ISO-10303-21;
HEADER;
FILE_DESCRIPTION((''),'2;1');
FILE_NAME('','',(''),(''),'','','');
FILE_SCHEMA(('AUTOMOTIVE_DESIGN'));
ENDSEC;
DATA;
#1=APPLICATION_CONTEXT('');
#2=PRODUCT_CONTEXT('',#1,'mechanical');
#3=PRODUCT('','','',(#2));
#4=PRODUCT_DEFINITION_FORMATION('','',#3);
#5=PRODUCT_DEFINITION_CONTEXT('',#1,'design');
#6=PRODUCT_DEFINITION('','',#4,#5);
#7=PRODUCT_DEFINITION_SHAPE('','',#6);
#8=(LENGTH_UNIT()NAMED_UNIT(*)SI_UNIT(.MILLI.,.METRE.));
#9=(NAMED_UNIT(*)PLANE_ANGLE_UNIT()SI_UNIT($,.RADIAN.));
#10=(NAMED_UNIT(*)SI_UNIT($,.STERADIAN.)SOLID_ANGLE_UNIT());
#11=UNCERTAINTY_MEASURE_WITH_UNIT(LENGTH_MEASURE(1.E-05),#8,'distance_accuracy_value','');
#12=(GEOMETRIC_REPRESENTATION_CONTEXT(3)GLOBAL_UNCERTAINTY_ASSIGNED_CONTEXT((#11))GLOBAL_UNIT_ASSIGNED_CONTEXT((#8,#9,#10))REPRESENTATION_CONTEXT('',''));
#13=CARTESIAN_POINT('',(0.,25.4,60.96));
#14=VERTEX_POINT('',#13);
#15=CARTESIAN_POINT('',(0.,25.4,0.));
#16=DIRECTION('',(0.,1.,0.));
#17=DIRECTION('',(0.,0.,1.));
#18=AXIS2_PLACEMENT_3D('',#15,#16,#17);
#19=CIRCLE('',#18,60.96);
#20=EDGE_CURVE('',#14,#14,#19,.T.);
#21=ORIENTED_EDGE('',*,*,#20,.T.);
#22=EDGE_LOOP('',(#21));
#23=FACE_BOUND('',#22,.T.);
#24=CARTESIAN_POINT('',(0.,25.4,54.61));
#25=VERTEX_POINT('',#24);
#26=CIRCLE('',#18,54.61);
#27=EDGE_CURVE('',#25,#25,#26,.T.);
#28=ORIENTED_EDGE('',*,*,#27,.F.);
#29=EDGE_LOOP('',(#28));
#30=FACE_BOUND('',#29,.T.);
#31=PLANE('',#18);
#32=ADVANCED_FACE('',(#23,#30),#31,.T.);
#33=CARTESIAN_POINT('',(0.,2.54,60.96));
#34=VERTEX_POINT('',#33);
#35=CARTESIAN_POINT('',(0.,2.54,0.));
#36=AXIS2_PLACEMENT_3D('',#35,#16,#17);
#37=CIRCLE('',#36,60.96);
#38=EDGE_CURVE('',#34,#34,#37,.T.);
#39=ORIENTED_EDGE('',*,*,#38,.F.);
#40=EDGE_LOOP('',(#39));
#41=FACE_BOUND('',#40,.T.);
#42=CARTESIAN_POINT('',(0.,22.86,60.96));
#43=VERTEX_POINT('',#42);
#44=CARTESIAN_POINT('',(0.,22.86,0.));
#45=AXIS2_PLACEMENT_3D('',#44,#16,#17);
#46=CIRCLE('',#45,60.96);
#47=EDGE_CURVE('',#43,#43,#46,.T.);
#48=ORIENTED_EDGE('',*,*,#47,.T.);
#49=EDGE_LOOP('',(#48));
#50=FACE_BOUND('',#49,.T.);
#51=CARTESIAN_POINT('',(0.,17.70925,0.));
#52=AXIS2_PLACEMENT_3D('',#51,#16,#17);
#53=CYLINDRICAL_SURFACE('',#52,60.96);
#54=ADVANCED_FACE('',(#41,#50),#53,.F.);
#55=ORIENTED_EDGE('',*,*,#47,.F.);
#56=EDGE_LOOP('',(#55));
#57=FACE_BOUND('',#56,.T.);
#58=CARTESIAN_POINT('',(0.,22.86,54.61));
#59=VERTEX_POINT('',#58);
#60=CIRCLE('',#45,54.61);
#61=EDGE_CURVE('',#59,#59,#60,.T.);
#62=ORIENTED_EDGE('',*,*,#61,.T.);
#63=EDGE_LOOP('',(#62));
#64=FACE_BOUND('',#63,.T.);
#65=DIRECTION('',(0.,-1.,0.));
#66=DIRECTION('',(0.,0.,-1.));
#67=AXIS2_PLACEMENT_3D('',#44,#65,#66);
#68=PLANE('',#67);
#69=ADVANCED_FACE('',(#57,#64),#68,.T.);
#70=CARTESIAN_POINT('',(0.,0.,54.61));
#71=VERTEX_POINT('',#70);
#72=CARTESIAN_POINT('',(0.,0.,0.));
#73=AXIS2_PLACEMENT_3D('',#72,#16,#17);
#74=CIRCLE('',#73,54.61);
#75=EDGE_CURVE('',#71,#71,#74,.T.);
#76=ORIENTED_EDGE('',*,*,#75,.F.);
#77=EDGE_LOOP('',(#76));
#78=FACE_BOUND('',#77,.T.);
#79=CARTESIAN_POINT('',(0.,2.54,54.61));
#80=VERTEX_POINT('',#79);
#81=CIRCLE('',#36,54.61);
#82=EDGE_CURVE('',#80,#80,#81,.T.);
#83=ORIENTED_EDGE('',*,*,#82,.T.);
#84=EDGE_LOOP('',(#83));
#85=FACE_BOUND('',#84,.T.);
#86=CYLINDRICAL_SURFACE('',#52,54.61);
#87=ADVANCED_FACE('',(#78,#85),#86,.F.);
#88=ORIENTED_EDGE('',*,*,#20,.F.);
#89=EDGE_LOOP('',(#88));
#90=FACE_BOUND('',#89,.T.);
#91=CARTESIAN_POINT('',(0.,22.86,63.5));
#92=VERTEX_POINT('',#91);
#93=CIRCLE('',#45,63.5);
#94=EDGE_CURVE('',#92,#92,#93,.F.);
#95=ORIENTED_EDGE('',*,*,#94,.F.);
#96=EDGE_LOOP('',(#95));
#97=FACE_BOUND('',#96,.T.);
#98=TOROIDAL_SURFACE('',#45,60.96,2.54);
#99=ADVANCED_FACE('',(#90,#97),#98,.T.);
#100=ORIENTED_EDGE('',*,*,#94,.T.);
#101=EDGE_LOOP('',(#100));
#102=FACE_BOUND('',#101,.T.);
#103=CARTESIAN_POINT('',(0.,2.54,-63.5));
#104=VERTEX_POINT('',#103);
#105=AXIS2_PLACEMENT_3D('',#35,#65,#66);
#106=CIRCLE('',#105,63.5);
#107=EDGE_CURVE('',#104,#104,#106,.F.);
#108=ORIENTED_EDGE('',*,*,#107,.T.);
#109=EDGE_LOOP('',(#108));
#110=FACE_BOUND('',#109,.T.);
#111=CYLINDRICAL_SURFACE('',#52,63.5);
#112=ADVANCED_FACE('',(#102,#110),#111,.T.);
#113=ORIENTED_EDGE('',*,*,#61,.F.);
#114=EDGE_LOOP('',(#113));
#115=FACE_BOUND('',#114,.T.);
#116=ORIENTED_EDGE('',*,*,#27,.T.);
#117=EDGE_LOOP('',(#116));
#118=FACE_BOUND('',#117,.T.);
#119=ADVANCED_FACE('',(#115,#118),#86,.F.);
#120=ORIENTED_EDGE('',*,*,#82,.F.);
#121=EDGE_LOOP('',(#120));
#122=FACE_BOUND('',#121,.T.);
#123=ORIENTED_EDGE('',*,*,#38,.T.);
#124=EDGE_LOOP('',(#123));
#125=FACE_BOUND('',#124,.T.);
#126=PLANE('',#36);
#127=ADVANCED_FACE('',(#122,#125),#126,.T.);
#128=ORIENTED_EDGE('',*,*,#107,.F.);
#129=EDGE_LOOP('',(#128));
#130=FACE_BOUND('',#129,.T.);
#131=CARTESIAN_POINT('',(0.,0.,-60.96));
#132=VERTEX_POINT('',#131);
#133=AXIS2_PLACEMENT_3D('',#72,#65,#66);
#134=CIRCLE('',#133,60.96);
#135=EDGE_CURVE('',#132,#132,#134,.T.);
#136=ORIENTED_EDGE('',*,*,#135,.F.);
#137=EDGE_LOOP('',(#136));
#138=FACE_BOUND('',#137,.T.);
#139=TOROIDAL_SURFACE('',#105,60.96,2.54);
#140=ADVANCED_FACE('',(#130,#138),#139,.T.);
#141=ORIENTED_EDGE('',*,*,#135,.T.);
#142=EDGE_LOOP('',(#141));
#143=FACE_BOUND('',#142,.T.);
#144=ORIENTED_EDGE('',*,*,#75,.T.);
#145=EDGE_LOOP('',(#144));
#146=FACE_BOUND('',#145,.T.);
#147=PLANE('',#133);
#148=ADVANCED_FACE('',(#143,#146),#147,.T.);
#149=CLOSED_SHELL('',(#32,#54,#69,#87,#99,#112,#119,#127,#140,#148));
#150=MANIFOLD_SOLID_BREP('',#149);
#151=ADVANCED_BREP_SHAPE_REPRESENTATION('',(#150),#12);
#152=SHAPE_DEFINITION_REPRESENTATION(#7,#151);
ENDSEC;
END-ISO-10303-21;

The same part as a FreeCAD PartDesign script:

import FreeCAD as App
import Part
import Sketcher

V = App.Vector
Q = App.Units.Quantity


def edges_at(feature, points):
    """Names of the edges that pass closest to the given points."""
    edges = feature.Shape.Edges
    near = lambda p: min(range(len(edges)), key=lambda i: edges[i].distToShape(Part.Vertex(*p))[0])
    return sorted({f"Edge{near(p) + 1}" for p in points})


def add_polygon(sketch, points):
    """Adds a closed chain of lines whose ends are joined by coincident constraints."""
    first, n = sketch.GeometryCount, len(points)
    for a, b in zip(points, points[1:] + points[:1]):
        sketch.addGeometry(Part.LineSegment(App.Vector(*a, 0), App.Vector(*b, 0)), False)
    for i in range(n):
        sketch.addConstraint(Sketcher.Constraint("Coincident", first + i, 2, first + (i + 1) % n, 1))

doc = App.newDocument("Part")
params = doc.addObject("Spreadsheet::Sheet", "Params")
for row, (alias, value) in enumerate([
    ("sketch1_height", "1 in"),
    ("sketch1_height2", "0.1 in"),
    ("sketch1_width", "0.35 in"),
    ("sketch1_width2", "0.25 in"),
    ("revolution_angle", "360 deg"),
    ("fillet_radius", "0.1 in"),
], start=1):
    params.set(f"A{row}", alias)
    params.set(f"B{row}", "=" + value)
    params.setAlias(f"B{row}", alias)

body = doc.addObject("PartDesign::Body", "Body")

sketch1 = body.newObject("Sketcher::SketchObject", "Sketch")
sketch1.AttachmentSupport = (doc.getObject("XY_Plane"), [""])
sketch1.MapMode = "FlatFace"
add_polygon(sketch1, [(-54.6, 25.4), (-63.5, 25.4), (-63.5, 0), (-54.6, 0), (-54.6, 2.5), (-61, 2.5), (-61, 22.9), (-54.6, 22.9)])
sketch1.addConstraint(Sketcher.Constraint("Horizontal", 0))
sketch1.addConstraint(Sketcher.Constraint("Vertical", 1))
sketch1.addConstraint(Sketcher.Constraint("Horizontal", 2))
sketch1.addConstraint(Sketcher.Constraint("Vertical", 3))
sketch1.addConstraint(Sketcher.Constraint("Horizontal", 4))
sketch1.addConstraint(Sketcher.Constraint("Vertical", 5))
sketch1.addConstraint(Sketcher.Constraint("Horizontal", 6))
sketch1.addConstraint(Sketcher.Constraint("Vertical", 7))
sketch1.addConstraint(Sketcher.Constraint("PointOnObject", 1, 2, -1))
sketch1.addConstraint(Sketcher.Constraint("Vertical", 3, 2, 6, 2))
sketch1.addConstraint(Sketcher.Constraint("Equal", 3, 7))
sketch1.addConstraint(Sketcher.Constraint("DistanceY", 1, 2, 1, 1, Q("1 in")))
sketch1.addConstraint(Sketcher.Constraint("DistanceY", 3, 1, 3, 2, Q("0.1 in")))
sketch1.addConstraint(Sketcher.Constraint("DistanceX", 0, 2, 0, 1, Q("0.35 in")))
sketch1.addConstraint(Sketcher.Constraint("DistanceX", 4, 2, 4, 1, Q("0.25 in")))
sketch1.addConstraint(Sketcher.Constraint("DistanceX", 0, 2, -1, 1, Q("2.5 in")))
sketch1.setExpression("Constraints[19]", "Params.sketch1_height")
sketch1.setExpression("Constraints[20]", "Params.sketch1_height2")
sketch1.setExpression("Constraints[21]", "Params.sketch1_width")
sketch1.setExpression("Constraints[22]", "Params.sketch1_width2")
revolution = body.newObject("PartDesign::Revolution", "Revolution")
revolution.Profile = sketch1
revolution.ReferenceAxis = (sketch1, ["V_Axis"])
revolution.setExpression("Angle", "Params.revolution_angle")
doc.recompute()

fillet = body.newObject("PartDesign::Fillet", "Fillet")
fillet.Base = (revolution, edges_at(revolution, [(0, 0, -63.5), (0, 25.4, -63.5)]))
fillet.setExpression("Radius", "Params.fillet_radius")

doc.recompute()
